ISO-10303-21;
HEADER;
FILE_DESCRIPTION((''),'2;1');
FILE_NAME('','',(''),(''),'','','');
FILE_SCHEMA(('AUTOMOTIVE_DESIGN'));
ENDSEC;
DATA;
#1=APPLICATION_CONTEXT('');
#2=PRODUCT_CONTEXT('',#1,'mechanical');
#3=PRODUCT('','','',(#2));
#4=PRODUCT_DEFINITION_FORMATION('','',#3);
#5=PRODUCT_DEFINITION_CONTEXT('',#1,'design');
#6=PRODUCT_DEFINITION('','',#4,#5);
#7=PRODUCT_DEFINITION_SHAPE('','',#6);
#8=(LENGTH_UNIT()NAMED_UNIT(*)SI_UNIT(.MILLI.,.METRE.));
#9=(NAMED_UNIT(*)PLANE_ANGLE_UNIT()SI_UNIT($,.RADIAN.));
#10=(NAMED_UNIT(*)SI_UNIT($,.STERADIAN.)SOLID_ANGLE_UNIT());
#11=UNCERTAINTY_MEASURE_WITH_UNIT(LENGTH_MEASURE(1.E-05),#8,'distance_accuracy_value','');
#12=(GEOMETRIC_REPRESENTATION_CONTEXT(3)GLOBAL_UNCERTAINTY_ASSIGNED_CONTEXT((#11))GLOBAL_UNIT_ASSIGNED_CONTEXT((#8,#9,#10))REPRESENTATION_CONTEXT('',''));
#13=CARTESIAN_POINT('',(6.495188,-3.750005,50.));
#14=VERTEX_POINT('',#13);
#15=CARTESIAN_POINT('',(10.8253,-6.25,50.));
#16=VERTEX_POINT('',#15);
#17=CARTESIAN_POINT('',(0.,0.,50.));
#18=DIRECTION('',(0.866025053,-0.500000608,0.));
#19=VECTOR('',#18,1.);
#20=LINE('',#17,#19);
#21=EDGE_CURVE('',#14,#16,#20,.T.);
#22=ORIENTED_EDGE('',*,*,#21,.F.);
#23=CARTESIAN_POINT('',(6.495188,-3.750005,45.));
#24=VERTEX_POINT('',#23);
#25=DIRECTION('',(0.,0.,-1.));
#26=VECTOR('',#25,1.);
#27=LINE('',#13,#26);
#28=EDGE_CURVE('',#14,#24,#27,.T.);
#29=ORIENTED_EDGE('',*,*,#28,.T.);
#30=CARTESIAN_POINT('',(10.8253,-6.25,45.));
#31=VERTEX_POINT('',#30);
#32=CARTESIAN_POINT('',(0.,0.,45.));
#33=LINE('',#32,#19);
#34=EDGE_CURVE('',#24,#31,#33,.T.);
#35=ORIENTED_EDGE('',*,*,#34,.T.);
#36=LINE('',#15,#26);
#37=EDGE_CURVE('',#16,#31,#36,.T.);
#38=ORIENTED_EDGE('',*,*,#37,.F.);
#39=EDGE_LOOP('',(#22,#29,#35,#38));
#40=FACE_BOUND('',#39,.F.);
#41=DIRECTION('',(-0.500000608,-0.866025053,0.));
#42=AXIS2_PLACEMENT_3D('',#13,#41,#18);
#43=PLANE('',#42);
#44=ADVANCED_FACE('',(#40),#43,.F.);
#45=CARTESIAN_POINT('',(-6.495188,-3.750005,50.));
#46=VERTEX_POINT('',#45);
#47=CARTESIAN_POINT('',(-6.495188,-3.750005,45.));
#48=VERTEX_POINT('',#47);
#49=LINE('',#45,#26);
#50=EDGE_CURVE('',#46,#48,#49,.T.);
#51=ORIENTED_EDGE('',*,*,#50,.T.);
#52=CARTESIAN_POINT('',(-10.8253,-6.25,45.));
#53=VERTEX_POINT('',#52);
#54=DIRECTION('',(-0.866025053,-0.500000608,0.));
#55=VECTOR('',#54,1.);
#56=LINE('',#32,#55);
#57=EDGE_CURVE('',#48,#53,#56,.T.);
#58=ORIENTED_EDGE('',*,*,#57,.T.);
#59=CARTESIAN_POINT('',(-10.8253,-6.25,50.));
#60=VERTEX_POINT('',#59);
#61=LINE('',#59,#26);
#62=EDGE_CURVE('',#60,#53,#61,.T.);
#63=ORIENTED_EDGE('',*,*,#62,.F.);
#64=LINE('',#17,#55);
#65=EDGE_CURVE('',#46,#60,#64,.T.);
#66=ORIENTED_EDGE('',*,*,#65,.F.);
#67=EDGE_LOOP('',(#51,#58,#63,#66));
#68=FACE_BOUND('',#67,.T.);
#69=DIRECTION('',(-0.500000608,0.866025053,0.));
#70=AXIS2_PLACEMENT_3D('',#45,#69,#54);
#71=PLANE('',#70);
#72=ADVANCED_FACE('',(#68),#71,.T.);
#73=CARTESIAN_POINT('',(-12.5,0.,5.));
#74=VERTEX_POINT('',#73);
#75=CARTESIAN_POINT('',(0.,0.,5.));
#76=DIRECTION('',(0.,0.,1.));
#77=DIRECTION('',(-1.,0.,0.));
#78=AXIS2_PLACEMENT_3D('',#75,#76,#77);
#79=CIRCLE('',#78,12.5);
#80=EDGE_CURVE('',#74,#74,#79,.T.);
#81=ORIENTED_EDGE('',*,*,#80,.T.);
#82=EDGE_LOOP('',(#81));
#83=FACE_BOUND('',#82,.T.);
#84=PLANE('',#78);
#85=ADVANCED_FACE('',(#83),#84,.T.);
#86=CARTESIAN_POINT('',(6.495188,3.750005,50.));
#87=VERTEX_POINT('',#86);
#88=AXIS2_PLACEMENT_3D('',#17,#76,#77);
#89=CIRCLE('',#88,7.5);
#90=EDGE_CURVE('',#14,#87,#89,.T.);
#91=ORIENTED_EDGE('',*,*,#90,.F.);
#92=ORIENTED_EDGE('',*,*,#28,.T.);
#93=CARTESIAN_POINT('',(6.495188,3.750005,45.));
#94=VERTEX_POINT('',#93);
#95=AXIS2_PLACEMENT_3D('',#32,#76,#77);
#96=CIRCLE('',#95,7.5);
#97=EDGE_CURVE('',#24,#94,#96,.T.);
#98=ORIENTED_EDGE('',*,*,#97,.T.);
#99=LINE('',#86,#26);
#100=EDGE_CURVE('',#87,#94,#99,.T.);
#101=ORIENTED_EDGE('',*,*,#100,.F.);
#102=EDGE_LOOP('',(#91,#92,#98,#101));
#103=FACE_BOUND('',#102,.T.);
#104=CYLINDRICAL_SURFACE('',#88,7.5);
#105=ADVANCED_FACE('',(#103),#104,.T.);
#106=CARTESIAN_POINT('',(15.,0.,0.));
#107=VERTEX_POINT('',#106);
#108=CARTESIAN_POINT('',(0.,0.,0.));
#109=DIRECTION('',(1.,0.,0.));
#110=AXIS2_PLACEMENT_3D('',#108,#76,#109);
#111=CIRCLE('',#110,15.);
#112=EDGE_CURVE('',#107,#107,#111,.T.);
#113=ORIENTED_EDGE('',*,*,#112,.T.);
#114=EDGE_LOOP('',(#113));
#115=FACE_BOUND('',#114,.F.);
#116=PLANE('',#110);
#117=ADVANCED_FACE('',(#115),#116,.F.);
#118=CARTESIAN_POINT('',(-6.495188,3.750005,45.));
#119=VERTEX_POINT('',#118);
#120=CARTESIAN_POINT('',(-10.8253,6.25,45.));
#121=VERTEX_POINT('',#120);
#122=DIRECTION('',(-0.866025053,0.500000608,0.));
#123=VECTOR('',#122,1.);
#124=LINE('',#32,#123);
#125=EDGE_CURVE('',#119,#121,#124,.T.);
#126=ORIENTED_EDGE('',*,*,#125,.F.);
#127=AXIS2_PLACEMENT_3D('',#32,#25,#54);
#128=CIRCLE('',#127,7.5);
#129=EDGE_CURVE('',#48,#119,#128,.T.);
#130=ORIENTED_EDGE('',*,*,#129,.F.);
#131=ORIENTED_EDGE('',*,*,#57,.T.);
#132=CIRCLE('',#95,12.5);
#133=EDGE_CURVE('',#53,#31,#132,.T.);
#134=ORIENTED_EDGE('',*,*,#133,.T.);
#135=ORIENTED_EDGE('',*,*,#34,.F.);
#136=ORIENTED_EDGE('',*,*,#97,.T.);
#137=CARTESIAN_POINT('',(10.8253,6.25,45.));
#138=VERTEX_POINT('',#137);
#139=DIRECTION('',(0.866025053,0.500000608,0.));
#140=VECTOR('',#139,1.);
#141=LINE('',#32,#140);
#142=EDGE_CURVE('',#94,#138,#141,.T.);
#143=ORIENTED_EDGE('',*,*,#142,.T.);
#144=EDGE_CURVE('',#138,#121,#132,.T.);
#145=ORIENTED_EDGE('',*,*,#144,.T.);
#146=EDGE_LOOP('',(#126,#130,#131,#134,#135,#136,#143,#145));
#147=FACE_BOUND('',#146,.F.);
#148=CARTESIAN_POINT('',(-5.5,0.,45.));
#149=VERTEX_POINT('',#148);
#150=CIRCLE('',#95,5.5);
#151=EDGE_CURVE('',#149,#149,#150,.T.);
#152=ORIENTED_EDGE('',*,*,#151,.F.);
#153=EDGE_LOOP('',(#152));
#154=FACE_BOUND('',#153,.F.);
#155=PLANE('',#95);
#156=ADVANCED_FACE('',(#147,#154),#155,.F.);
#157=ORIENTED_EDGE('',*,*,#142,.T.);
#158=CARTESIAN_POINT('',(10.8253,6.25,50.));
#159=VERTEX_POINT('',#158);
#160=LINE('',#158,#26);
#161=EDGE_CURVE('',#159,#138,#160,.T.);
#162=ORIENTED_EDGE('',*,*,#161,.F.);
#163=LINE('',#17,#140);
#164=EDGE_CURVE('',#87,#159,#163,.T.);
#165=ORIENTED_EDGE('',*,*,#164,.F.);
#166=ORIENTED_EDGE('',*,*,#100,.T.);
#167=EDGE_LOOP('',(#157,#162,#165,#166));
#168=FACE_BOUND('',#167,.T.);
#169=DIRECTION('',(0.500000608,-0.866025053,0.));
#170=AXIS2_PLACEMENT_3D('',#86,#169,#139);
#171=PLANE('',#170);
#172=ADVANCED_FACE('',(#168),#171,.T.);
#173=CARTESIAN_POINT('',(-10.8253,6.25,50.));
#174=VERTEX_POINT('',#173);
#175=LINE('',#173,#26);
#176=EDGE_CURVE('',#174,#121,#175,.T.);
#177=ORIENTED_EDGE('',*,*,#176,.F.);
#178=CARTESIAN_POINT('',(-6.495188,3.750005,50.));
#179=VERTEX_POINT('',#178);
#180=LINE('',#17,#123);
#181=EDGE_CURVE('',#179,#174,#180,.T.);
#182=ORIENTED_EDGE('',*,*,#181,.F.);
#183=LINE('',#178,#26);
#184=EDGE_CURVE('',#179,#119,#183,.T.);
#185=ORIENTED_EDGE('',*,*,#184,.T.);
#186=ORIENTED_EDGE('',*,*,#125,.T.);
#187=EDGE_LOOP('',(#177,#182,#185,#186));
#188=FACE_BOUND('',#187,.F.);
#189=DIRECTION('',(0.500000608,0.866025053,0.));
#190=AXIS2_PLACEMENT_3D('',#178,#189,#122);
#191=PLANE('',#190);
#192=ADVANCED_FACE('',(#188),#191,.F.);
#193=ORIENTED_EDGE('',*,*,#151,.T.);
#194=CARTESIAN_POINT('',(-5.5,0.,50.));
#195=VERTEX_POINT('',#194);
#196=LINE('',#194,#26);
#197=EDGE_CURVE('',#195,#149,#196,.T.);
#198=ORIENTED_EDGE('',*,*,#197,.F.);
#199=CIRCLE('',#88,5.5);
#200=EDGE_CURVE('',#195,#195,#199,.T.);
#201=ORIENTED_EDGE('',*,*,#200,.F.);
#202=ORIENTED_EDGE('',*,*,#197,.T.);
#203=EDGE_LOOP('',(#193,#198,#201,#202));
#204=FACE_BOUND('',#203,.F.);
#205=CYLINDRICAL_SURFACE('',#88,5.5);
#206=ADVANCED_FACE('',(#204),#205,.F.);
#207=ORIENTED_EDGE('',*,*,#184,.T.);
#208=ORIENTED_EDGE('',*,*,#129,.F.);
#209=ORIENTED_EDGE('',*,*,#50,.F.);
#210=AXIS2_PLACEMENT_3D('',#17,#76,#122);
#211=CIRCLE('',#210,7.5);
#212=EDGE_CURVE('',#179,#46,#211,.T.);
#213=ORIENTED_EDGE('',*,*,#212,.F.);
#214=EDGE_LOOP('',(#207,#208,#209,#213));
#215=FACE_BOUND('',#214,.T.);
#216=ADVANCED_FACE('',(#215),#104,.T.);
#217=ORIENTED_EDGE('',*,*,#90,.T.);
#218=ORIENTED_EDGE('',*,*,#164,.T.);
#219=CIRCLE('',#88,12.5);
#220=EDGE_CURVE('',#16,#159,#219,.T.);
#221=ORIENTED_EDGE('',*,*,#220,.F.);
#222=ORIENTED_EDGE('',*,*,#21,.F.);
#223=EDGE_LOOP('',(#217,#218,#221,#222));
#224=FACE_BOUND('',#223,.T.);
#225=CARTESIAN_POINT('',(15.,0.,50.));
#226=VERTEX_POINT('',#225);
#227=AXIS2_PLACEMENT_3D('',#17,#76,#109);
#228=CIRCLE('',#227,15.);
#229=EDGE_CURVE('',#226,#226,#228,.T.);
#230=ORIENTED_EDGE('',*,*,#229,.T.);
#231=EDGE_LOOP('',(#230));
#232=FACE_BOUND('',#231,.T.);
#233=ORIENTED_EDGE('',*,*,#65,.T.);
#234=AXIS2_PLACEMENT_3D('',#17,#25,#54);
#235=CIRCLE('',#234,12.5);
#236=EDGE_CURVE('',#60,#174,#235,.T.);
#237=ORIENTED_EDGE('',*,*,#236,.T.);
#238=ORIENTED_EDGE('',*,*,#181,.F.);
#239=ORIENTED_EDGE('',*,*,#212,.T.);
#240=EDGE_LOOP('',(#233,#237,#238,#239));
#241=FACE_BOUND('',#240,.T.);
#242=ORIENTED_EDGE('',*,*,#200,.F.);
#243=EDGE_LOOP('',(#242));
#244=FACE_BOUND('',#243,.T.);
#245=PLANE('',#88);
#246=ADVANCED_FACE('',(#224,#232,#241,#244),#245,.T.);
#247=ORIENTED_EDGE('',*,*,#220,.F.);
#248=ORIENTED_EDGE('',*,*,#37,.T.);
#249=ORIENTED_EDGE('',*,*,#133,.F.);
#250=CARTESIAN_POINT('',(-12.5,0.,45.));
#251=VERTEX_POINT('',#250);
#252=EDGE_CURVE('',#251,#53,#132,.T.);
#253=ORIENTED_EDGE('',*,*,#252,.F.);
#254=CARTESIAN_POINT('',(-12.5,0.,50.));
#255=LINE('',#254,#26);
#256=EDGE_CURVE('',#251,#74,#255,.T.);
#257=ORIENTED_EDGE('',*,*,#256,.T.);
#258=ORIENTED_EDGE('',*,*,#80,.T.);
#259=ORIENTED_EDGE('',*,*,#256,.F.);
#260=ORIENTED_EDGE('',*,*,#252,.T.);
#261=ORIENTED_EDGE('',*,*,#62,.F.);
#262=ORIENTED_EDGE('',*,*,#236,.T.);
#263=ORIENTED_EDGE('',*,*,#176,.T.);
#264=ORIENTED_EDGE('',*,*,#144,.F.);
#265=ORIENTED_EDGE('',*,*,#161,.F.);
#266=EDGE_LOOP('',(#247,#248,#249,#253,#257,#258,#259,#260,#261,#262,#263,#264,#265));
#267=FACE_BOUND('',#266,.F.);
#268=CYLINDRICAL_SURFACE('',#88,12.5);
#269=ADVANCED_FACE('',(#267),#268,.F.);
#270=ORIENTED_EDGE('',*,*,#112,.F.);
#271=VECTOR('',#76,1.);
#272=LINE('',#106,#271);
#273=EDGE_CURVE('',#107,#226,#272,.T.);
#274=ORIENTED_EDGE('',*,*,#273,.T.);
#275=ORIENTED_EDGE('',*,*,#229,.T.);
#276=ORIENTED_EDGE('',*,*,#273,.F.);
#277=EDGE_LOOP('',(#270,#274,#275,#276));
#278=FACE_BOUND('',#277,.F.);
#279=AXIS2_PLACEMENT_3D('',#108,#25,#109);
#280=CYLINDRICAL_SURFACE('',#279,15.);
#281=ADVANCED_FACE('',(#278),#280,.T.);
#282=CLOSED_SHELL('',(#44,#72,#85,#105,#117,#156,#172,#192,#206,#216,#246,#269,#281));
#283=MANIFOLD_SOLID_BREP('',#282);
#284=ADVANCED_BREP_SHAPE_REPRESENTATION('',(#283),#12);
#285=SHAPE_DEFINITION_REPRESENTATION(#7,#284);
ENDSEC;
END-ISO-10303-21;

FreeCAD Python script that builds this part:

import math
import FreeCAD as App
import Part
import Sketcher

V = App.Vector
Q = App.Units.Quantity

doc = App.newDocument("Part")
params = doc.addObject("Spreadsheet::Sheet", "Params")
for row, (alias, value) in enumerate([
    ("sketch1_diameter", "30 mm"),
    ("pad1_length", "50 mm"),
    ("sketch2_diameter", "25 mm"),
    ("pocket1_length", "45 mm"),
    ("sketch3_diameter", "11 mm"),
    ("sketch3_diameter2", "25 mm"),
    ("pad2_length", "5 mm"),
    ("sketch4_radius", "7.5 mm"),
    ("sketch4_radius2", "12.5 mm"),
    ("pocket2_length", "5 mm"),
], start=1):
    params.set(f"A{row}", alias)
    params.set(f"B{row}", "=" + value)
    params.setAlias(f"B{row}", alias)

body = doc.addObject("PartDesign::Body", "Body")

# Sketch on XY plane
sketch1 = body.newObject("Sketcher::SketchObject", "Sketch")
sketch1.AttachmentSupport = (doc.getObject("XY_Plane"), [""])
sketch1.MapMode = "FlatFace"
sketch1.addGeometry(Part.Circle(V(0, 0, 0), V(0, 0, 1), 15), False)
sketch1.addConstraint(Sketcher.Constraint("Coincident", 0, 3, -1, 1))
sketch1.addConstraint(Sketcher.Constraint("Diameter", 0, Q("30 mm")))
sketch1.setExpression("Constraints[1]", "Params.sketch1_diameter")
pad1 = body.newObject("PartDesign::Pad", "Pad")
pad1.Profile = sketch1
pad1.setExpression("Length", "Params.pad1_length")

# Sketch on XY plane
sketch2 = body.newObject("Sketcher::SketchObject", "Sketch001")
sketch2.AttachmentSupport = (doc.getObject("XY_Plane"), [""])
sketch2.MapMode = "FlatFace"
sketch2.AttachmentOffset = App.Placement(V(0, 0, 50), App.Rotation())
sketch2.addGeometry(Part.Circle(V(0, 0, 0), V(0, 0, 1), 12), False)
sketch2.addConstraint(Sketcher.Constraint("Coincident", 0, 3, -1, 1))
sketch2.addConstraint(Sketcher.Constraint("Diameter", 0, Q("25 mm")))
sketch2.setExpression("Constraints[1]", "Params.sketch2_diameter")
pocket1 = body.newObject("PartDesign::Pocket", "Pocket")
pocket1.Profile = sketch2
pocket1.setExpression("Length", "Params.pocket1_length")

# Sketch on XY plane
sketch3 = body.newObject("Sketcher::SketchObject", "Sketch002")
sketch3.AttachmentSupport = (doc.getObject("XY_Plane"), [""])
sketch3.MapMode = "FlatFace"
sketch3.AttachmentOffset = App.Placement(V(0, 0, 50), App.Rotation())
sketch3.addGeometry(Part.Circle(V(0, 0, 0), V(0, 0, 1), 12), False)
sketch3.addGeometry(Part.Circle(V(0, 0, 0), V(0, 0, 1), 6), False)
sketch3.addConstraint(Sketcher.Constraint("Coincident", 0, 3, -1, 1))
sketch3.addConstraint(Sketcher.Constraint("Coincident", 1, 3, -1, 1))
sketch3.addConstraint(Sketcher.Constraint("Diameter", 1, Q("11 mm")))
sketch3.addConstraint(Sketcher.Constraint("Diameter", 0, Q("25 mm")))
sketch3.setExpression("Constraints[2]", "Params.sketch3_diameter")
sketch3.setExpression("Constraints[3]", "Params.sketch3_diameter2")
pad2 = body.newObject("PartDesign::Pad", "Pad001")
pad2.Profile = sketch3
pad2.setExpression("Length", "Params.pad2_length")
pad2.Reversed = True

# Sketch on XY plane
sketch4 = body.newObject("Sketcher::SketchObject", "Sketch003")
sketch4.AttachmentSupport = (doc.getObject("XY_Plane"), [""])
sketch4.MapMode = "FlatFace"
sketch4.AttachmentOffset = App.Placement(V(0, 0, 50), App.Rotation())
sketch4.addGeometry(Part.LineSegment(V(-10.8, -6.2, 0), V(-6.5, -3.8, 0)), False)
sketch4.addGeometry(Part.ArcOfCircle(Part.Circle(V(0, 0, 0), V(0, 0, 1), 7.5), math.radians(150), math.radians(210)), False)
sketch4.addGeometry(Part.LineSegment(V(-6.5, 3.8, 0), V(-10.8, 6.2, 0)), False)
sketch4.addGeometry(Part.ArcOfCircle(Part.Circle(V(0, 0, 0), V(0, 0, 1), 12.5), math.radians(150), math.radians(210)), False)
sketch4.addGeometry(Part.ArcOfCircle(Part.Circle(V(0, 0, 0), V(0, 0, 1), 7.5), math.radians(-30), math.radians(30)), False)
sketch4.addGeometry(Part.LineSegment(V(6.5, -3.8, 0), V(10.8, -6.2, 0)), False)
sketch4.addGeometry(Part.ArcOfCircle(Part.Circle(V(0, 0, 0), V(0, 0, 1), 12.5), math.radians(-30), math.radians(30)), False)
sketch4.addGeometry(Part.LineSegment(V(10.8, 6.2, 0), V(6.5, 3.8, 0)), False)
sketch4.addConstraint(Sketcher.Constraint("Coincident", 0, 2, 1, 2))
sketch4.addConstraint(Sketcher.Constraint("Coincident", 1, 1, 2, 1))
sketch4.addConstraint(Sketcher.Constraint("Coincident", 2, 2, 3, 1))
sketch4.addConstraint(Sketcher.Constraint("Coincident", 3, 2, 0, 1))
sketch4.addConstraint(Sketcher.Constraint("Coincident", 4, 1, 5, 1))
sketch4.addConstraint(Sketcher.Constraint("Coincident", 5, 2, 6, 1))
sketch4.addConstraint(Sketcher.Constraint("Coincident", 6, 2, 7, 1))
sketch4.addConstraint(Sketcher.Constraint("Coincident", 7, 2, 4, 2))
sketch4.addConstraint(Sketcher.Constraint("Coincident", 1, 3, -1, 1))
sketch4.addConstraint(Sketcher.Constraint("Coincident", 3, 3, -1, 1))
sketch4.addConstraint(Sketcher.Constraint("Coincident", 4, 3, -1, 1))
sketch4.addConstraint(Sketcher.Constraint("Coincident", 6, 3, -1, 1))
sketch4.addConstraint(Sketcher.Constraint("Equal", 1, 4))
sketch4.addConstraint(Sketcher.Constraint("Equal", 3, 6))
sketch4.addConstraint(Sketcher.Constraint("Parallel", 2, 5))
sketch4.addConstraint(Sketcher.Constraint("Parallel", 0, 7))
sketch4.addConstraint(Sketcher.Constraint("Horizontal", 0, 2, 4, 1))
sketch4.addConstraint(Sketcher.Constraint("Horizontal", 3, 2, 5, 2))
sketch4.addConstraint(Sketcher.Constraint("Horizontal", 2, 2, 6, 2))
sketch4.addConstraint(Sketcher.Constraint("Vertical", 0, 2, 1, 1))
sketch4.addConstraint(Sketcher.Constraint("Radius", 1, Q("7.5 mm")))
sketch4.addConstraint(Sketcher.Constraint("Radius", 3, Q("12.5 mm")))
sketch4.addConstraint(Sketcher.Constraint("Angle", 0, Q("30 deg")))
sketch4.addConstraint(Sketcher.Constraint("DistanceY", 0, 2, 2, 2, Q("10 mm")))
sketch4.setExpression("Constraints[20]", "Params.sketch4_radius")
sketch4.setExpression("Constraints[21]", "Params.sketch4_radius2")
pocket2 = body.newObject("PartDesign::Pocket", "Pocket001")
pocket2.Profile = sketch4
pocket2.setExpression("Length", "Params.pocket2_length")

doc.recompute()
